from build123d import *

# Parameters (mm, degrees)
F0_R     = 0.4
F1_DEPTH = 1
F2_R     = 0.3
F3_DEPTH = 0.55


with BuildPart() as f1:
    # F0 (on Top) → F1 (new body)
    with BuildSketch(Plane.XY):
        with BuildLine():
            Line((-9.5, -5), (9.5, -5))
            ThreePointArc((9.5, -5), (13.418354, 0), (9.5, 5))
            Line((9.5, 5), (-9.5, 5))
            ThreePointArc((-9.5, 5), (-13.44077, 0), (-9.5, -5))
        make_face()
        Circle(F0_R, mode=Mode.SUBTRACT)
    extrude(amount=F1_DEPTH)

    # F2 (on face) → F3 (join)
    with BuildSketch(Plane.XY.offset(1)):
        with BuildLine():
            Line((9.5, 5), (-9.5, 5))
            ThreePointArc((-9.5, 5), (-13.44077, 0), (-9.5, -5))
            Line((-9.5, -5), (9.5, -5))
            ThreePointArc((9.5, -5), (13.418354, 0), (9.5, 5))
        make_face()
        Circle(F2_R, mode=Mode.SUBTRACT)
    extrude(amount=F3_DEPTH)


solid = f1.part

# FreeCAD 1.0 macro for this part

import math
import FreeCAD as App
import Part
import Sketcher

V = App.Vector

doc = App.newDocument("Part")
body = doc.addObject("PartDesign::Body", "Body")

# Sketch on XY plane
sketch1 = body.newObject("Sketcher::SketchObject", "Sketch")
sketch1.AttachmentSupport = (doc.getObject("XY_Plane"), [""])
sketch1.MapMode = "FlatFace"
sketch1.addGeometry([
    Part.LineSegment(V(-9.5, -5, 0), V(9.5, -5, 0)),  # 0
    Part.ArcOfCircle(Part.Circle(V(8.27, 0, 0), V(0, 0, 1), 5.15), math.radians(-76), math.radians(76)),  # 1
    Part.LineSegment(V(9.5, 5, 0), V(-9.5, 5, 0)),  # 2
    Part.ArcOfCircle(Part.Circle(V(-8.3, 0, 0), V(0, 0, 1), 5.14), math.radians(104), math.radians(256)),  # 3
    Part.Circle(V(0, 0, 0), V(0, 0, 1), 0.4),  # 4
], False)
sketch1.addConstraint([
    Sketcher.Constraint("Coincident", 0, 2, 1, 1),
    Sketcher.Constraint("Coincident", 1, 2, 2, 1),
    Sketcher.Constraint("Coincident", 2, 2, 3, 1),
    Sketcher.Constraint("Coincident", 3, 2, 0, 1),
    Sketcher.Constraint("Horizontal", 0),
    Sketcher.Constraint("Horizontal", 2),
    Sketcher.Constraint("Coincident", 4, 3, -1, 1),
    Sketcher.Constraint("Symmetric", 0, 2, 2, 2, -1, 1),
    Sketcher.Constraint("PointOnObject", 1, 3, -1),
    Sketcher.Constraint("PointOnObject", 3, 3, -1),
    Sketcher.Constraint("Diameter", 4, 0.8),
    Sketcher.Constraint("DistanceX", 0, 1, 0, 2, 19.0),
    Sketcher.Constraint("DistanceY", 0, 2, -1, 1, 5.0),
    Sketcher.Constraint("Radius", 1, 5.149292),
    Sketcher.Constraint("Radius", 3, 5.142354),
])
pad1 = body.newObject("PartDesign::Pad", "Pad")
pad1.Profile = sketch1
pad1.Length = 1

# Sketch on XY plane
sketch2 = body.newObject("Sketcher::SketchObject", "Sketch001")
sketch2.AttachmentSupport = (doc.getObject("XY_Plane"), [""])
sketch2.MapMode = "FlatFace"
sketch2.AttachmentOffset = App.Placement(V(0, 0, 1), App.Rotation())
sketch2.addGeometry([
    Part.LineSegment(V(9.5, 5, 0), V(-9.5, 5, 0)),  # 0
    Part.ArcOfCircle(Part.Circle(V(-8.3, 0, 0), V(0, 0, 1), 5.14), math.radians(104), math.radians(256)),  # 1
    Part.LineSegment(V(-9.5, -5, 0), V(9.5, -5, 0)),  # 2
    Part.ArcOfCircle(Part.Circle(V(8.27, 0, 0), V(0, 0, 1), 5.15), math.radians(-76), math.radians(76)),  # 3
    Part.Circle(V(0, 0, 0), V(0, 0, 1), 0.3),  # 4
], False)
sketch2.addConstraint([
    Sketcher.Constraint("Coincident", 0, 2, 1, 1),
    Sketcher.Constraint("Coincident", 1, 2, 2, 1),
    Sketcher.Constraint("Coincident", 2, 2, 3, 1),
    Sketcher.Constraint("Coincident", 3, 2, 0, 1),
    Sketcher.Constraint("Horizontal", 0),
    Sketcher.Constraint("Horizontal", 2),
    Sketcher.Constraint("Coincident", 4, 3, -1, 1),
    Sketcher.Constraint("Symmetric", 0, 2, 2, 2, -1, 1),
    Sketcher.Constraint("PointOnObject", 1, 3, -1),
    Sketcher.Constraint("PointOnObject", 3, 3, -1),
    Sketcher.Constraint("Diameter", 4, 0.6),
    Sketcher.Constraint("DistanceX", 0, 2, 0, 1, 19.0),
    Sketcher.Constraint("DistanceY", -1, 1, 0, 2, 5.0),
    Sketcher.Constraint("Radius", 1, 5.142354),
    Sketcher.Constraint("Radius", 3, 5.149292),
])
pad2 = body.newObject("PartDesign::Pad", "Pad001")
pad2.Profile = sketch2
pad2.Length = 0.55

doc.recompute()
